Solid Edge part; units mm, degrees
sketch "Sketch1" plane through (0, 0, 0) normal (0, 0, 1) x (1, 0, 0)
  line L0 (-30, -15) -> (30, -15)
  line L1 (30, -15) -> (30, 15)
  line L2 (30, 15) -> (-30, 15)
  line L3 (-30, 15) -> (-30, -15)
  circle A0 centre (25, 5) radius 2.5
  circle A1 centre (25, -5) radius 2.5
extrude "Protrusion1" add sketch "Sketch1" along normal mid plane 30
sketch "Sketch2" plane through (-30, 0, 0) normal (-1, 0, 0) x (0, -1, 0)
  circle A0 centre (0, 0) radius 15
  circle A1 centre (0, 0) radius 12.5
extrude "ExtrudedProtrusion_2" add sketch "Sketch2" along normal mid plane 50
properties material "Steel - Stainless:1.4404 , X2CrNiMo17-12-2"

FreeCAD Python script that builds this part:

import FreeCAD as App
import Part
import Sketcher
from FreeCAD import Vector
Q = App.Units.Quantity

doc = App.newDocument("Part")
body = doc.addObject("PartDesign::Body", "Body")

# Sketch on XY plane
sketch1 = body.newObject("Sketcher::SketchObject", "Sketch")
sketch1.AttachmentSupport = (doc.getObject("XY_Plane"), [""])
sketch1.MapMode = "FlatFace"
sketch1.addGeometry([
    Part.LineSegment(Vector(-30, 15, 0), Vector(-30, -15, 0)),  # 0
    Part.LineSegment(Vector(-30, -15, 0), Vector(30, -15, 0)),  # 1
    Part.LineSegment(Vector(30, -15, 0), Vector(30, 15, 0)),  # 2
    Part.LineSegment(Vector(30, 15, 0), Vector(-30, 15, 0)),  # 3
    Part.Circle(Vector(25, -5, 0), Vector(0, 0, 1), 2.5),  # 4
    Part.Circle(Vector(25, 5, 0), Vector(0, 0, 1), 2.5),  # 5
], False)
sketch1.addConstraint([
    Sketcher.Constraint("Coincident", 0, 2, 1, 1),
    Sketcher.Constraint("Coincident", 1, 2, 2, 1),
    Sketcher.Constraint("Coincident", 2, 2, 3, 1),
    Sketcher.Constraint("Coincident", 3, 2, 0, 1),
    Sketcher.Constraint("Vertical", 0),
    Sketcher.Constraint("Horizontal", 1),
    Sketcher.Constraint("Vertical", 2),
    Sketcher.Constraint("Horizontal", 3),
    Sketcher.Constraint("Equal", 4, 5),
    Sketcher.Constraint("Symmetric", 0, 2, 2, 2, -1, 1),
    Sketcher.Constraint("Symmetric", 4, 3, 5, 3, -1),
    Sketcher.Constraint("Diameter", 4, Q("5 mm")),
    Sketcher.Constraint("DistanceX", 1, 1, 1, 2, Q("60 mm")),
    Sketcher.Constraint("DistanceY", 0, 2, 0, 1, Q("30 mm")),
    Sketcher.Constraint("DistanceX", -1, 1, 4, 3, Q("25 mm")),
    Sketcher.Constraint("DistanceY", 4, 3, -1, 1, Q("5 mm")),
])
pad1 = body.newObject("PartDesign::Pad", "Pad")
pad1.Profile = sketch1
pad1.Length = 30
pad1.Midplane = True

# Sketch on YZ plane
sketch2 = body.newObject("Sketcher::SketchObject", "Sketch001")
sketch2.AttachmentSupport = (doc.getObject("YZ_Plane"), [""])
sketch2.MapMode = "FlatFace"
sketch2.AttachmentOffset = App.Placement(Vector(0, 0, -30), App.Rotation())
sketch2.addGeometry([
    Part.Circle(Vector(0, 0, 0), Vector(0, 0, 1), 15),
    Part.Circle(Vector(0, 0, 0), Vector(0, 0, 1), 12),
], False)
sketch2.addConstraint([
    Sketcher.Constraint("Coincident", 0, 3, -1, 1),
    Sketcher.Constraint("Coincident", 1, 3, -1, 1),
    Sketcher.Constraint("Diameter", 0, Q("30 mm")),
    Sketcher.Constraint("Diameter", 1, Q("25 mm")),
])
pad2 = body.newObject("PartDesign::Pad", "Pad001")
pad2.Profile = sketch2
pad2.Length = 50
pad2.Midplane = True

doc.recompute()
